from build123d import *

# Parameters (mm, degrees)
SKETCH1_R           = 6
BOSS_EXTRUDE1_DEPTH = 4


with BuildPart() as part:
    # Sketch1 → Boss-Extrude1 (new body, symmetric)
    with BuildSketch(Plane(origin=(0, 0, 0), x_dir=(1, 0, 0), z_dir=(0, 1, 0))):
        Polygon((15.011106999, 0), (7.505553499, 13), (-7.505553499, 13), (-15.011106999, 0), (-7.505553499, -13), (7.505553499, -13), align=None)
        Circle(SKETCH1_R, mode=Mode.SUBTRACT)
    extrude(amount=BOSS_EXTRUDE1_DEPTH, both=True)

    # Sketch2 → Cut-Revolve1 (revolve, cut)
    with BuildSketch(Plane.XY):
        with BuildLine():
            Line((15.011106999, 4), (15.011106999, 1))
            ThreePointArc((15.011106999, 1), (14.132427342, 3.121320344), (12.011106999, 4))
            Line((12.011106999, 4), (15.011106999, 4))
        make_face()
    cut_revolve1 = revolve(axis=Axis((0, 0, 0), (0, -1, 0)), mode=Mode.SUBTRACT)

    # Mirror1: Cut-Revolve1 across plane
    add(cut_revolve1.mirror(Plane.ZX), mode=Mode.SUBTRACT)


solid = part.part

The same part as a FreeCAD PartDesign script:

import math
import FreeCAD as App
import Part
import Sketcher
from FreeCAD import Vector
Q = App.Units.Quantity


def add_polygon(sketch, points):
    """Adds a closed chain of lines whose ends are joined by coincident constraints."""
    first, n = sketch.GeometryCount, len(points)
    for a, b in zip(points, points[1:] + points[:1]):
        sketch.addGeometry(Part.LineSegment(App.Vector(*a, 0), App.Vector(*b, 0)), False)
    for i in range(n):
        sketch.addConstraint(Sketcher.Constraint("Coincident", first + i, 2, first + (i + 1) % n, 1))

doc = App.newDocument("Part")
body = doc.addObject("PartDesign::Body", "Body")

# Sketch on XZ plane
sketch1 = body.newObject("Sketcher::SketchObject", "Sketch")
sketch1.AttachmentSupport = (doc.getObject("XZ_Plane"), [""])
sketch1.MapMode = "FlatFace"
add_polygon(sketch1, [(15, 0), (8, -13), (-8, -13), (-15, 0), (-8, 13), (8, 13)])  # lines 0-5
sketch1.addGeometry(Part.Circle(Vector(0, 0, 0), Vector(0, 0, 1), 6), False)  # 6
sketch1.addConstraint([
    Sketcher.Constraint("Horizontal", 1),
    Sketcher.Constraint("Horizontal", 4),
    Sketcher.Constraint("Coincident", 6, 3, -1, 1),
    Sketcher.Constraint("Symmetric", 0, 2, 3, 2, -1, 1),
    Sketcher.Constraint("Symmetric", 2, 2, 5, 2, -1, 1),
    Sketcher.Constraint("PointOnObject", 2, 2, -1),
    Sketcher.Constraint("Parallel", 2, 5),
    Sketcher.Constraint("Vertical", 1, 2, 3, 2),
    Sketcher.Constraint("Diameter", 6, Q("12 mm")),
    Sketcher.Constraint("Angle", 0, Q("-120 deg")),
    Sketcher.Constraint("DistanceY", 0, 2, -1, 1, Q("13 mm")),
    Sketcher.Constraint("DistanceX", 1, 2, 1, 1, Q("15.011107 mm")),
])
pad1 = body.newObject("PartDesign::Pad", "Pad")
pad1.Profile = sketch1
pad1.Length = 8
pad1.Midplane = True

# Sketch on XY plane
sketch2 = body.newObject("Sketcher::SketchObject", "Sketch001")
sketch2.AttachmentSupport = (doc.getObject("XY_Plane"), [""])
sketch2.MapMode = "FlatFace"
sketch2.addGeometry([
    Part.LineSegment(Vector(15, 1, 0), Vector(15, 4, 0)),
    Part.LineSegment(Vector(15, 4, 0), Vector(12, 4, 0)),
    Part.ArcOfCircle(Part.Circle(Vector(12, 1, 0), Vector(0, 0, 1), 3), math.radians(0), math.radians(90)),
], False)
sketch2.addConstraint([
    Sketcher.Constraint("Coincident", 0, 2, 1, 1),
    Sketcher.Constraint("Tangent", 1, 2, 2, 2),
    Sketcher.Constraint("Tangent", 2, 1, 0, 1),
    Sketcher.Constraint("Vertical", 0),
    Sketcher.Constraint("Horizontal", 1),
    Sketcher.Constraint("Radius", 2, Q("3 mm")),
    Sketcher.Constraint("DistanceY", -1, 1, 2, 3, Q("1 mm")),
    Sketcher.Constraint("DistanceX", -1, 1, 2, 3, Q("12.011107 mm")),
])
groove = body.newObject("PartDesign::Groove", "Groove")
groove.Profile = sketch2
groove.ReferenceAxis = (sketch2, ["V_Axis"])
groove.Angle = 360
doc.recompute()

mirrored = body.newObject("PartDesign::Mirrored", "Mirrored")
mirrored.Originals = [groove]
mirrored.MirrorPlane = (doc.getObject("XZ_Plane"), [""])
body.Tip = mirrored

doc.recompute()
